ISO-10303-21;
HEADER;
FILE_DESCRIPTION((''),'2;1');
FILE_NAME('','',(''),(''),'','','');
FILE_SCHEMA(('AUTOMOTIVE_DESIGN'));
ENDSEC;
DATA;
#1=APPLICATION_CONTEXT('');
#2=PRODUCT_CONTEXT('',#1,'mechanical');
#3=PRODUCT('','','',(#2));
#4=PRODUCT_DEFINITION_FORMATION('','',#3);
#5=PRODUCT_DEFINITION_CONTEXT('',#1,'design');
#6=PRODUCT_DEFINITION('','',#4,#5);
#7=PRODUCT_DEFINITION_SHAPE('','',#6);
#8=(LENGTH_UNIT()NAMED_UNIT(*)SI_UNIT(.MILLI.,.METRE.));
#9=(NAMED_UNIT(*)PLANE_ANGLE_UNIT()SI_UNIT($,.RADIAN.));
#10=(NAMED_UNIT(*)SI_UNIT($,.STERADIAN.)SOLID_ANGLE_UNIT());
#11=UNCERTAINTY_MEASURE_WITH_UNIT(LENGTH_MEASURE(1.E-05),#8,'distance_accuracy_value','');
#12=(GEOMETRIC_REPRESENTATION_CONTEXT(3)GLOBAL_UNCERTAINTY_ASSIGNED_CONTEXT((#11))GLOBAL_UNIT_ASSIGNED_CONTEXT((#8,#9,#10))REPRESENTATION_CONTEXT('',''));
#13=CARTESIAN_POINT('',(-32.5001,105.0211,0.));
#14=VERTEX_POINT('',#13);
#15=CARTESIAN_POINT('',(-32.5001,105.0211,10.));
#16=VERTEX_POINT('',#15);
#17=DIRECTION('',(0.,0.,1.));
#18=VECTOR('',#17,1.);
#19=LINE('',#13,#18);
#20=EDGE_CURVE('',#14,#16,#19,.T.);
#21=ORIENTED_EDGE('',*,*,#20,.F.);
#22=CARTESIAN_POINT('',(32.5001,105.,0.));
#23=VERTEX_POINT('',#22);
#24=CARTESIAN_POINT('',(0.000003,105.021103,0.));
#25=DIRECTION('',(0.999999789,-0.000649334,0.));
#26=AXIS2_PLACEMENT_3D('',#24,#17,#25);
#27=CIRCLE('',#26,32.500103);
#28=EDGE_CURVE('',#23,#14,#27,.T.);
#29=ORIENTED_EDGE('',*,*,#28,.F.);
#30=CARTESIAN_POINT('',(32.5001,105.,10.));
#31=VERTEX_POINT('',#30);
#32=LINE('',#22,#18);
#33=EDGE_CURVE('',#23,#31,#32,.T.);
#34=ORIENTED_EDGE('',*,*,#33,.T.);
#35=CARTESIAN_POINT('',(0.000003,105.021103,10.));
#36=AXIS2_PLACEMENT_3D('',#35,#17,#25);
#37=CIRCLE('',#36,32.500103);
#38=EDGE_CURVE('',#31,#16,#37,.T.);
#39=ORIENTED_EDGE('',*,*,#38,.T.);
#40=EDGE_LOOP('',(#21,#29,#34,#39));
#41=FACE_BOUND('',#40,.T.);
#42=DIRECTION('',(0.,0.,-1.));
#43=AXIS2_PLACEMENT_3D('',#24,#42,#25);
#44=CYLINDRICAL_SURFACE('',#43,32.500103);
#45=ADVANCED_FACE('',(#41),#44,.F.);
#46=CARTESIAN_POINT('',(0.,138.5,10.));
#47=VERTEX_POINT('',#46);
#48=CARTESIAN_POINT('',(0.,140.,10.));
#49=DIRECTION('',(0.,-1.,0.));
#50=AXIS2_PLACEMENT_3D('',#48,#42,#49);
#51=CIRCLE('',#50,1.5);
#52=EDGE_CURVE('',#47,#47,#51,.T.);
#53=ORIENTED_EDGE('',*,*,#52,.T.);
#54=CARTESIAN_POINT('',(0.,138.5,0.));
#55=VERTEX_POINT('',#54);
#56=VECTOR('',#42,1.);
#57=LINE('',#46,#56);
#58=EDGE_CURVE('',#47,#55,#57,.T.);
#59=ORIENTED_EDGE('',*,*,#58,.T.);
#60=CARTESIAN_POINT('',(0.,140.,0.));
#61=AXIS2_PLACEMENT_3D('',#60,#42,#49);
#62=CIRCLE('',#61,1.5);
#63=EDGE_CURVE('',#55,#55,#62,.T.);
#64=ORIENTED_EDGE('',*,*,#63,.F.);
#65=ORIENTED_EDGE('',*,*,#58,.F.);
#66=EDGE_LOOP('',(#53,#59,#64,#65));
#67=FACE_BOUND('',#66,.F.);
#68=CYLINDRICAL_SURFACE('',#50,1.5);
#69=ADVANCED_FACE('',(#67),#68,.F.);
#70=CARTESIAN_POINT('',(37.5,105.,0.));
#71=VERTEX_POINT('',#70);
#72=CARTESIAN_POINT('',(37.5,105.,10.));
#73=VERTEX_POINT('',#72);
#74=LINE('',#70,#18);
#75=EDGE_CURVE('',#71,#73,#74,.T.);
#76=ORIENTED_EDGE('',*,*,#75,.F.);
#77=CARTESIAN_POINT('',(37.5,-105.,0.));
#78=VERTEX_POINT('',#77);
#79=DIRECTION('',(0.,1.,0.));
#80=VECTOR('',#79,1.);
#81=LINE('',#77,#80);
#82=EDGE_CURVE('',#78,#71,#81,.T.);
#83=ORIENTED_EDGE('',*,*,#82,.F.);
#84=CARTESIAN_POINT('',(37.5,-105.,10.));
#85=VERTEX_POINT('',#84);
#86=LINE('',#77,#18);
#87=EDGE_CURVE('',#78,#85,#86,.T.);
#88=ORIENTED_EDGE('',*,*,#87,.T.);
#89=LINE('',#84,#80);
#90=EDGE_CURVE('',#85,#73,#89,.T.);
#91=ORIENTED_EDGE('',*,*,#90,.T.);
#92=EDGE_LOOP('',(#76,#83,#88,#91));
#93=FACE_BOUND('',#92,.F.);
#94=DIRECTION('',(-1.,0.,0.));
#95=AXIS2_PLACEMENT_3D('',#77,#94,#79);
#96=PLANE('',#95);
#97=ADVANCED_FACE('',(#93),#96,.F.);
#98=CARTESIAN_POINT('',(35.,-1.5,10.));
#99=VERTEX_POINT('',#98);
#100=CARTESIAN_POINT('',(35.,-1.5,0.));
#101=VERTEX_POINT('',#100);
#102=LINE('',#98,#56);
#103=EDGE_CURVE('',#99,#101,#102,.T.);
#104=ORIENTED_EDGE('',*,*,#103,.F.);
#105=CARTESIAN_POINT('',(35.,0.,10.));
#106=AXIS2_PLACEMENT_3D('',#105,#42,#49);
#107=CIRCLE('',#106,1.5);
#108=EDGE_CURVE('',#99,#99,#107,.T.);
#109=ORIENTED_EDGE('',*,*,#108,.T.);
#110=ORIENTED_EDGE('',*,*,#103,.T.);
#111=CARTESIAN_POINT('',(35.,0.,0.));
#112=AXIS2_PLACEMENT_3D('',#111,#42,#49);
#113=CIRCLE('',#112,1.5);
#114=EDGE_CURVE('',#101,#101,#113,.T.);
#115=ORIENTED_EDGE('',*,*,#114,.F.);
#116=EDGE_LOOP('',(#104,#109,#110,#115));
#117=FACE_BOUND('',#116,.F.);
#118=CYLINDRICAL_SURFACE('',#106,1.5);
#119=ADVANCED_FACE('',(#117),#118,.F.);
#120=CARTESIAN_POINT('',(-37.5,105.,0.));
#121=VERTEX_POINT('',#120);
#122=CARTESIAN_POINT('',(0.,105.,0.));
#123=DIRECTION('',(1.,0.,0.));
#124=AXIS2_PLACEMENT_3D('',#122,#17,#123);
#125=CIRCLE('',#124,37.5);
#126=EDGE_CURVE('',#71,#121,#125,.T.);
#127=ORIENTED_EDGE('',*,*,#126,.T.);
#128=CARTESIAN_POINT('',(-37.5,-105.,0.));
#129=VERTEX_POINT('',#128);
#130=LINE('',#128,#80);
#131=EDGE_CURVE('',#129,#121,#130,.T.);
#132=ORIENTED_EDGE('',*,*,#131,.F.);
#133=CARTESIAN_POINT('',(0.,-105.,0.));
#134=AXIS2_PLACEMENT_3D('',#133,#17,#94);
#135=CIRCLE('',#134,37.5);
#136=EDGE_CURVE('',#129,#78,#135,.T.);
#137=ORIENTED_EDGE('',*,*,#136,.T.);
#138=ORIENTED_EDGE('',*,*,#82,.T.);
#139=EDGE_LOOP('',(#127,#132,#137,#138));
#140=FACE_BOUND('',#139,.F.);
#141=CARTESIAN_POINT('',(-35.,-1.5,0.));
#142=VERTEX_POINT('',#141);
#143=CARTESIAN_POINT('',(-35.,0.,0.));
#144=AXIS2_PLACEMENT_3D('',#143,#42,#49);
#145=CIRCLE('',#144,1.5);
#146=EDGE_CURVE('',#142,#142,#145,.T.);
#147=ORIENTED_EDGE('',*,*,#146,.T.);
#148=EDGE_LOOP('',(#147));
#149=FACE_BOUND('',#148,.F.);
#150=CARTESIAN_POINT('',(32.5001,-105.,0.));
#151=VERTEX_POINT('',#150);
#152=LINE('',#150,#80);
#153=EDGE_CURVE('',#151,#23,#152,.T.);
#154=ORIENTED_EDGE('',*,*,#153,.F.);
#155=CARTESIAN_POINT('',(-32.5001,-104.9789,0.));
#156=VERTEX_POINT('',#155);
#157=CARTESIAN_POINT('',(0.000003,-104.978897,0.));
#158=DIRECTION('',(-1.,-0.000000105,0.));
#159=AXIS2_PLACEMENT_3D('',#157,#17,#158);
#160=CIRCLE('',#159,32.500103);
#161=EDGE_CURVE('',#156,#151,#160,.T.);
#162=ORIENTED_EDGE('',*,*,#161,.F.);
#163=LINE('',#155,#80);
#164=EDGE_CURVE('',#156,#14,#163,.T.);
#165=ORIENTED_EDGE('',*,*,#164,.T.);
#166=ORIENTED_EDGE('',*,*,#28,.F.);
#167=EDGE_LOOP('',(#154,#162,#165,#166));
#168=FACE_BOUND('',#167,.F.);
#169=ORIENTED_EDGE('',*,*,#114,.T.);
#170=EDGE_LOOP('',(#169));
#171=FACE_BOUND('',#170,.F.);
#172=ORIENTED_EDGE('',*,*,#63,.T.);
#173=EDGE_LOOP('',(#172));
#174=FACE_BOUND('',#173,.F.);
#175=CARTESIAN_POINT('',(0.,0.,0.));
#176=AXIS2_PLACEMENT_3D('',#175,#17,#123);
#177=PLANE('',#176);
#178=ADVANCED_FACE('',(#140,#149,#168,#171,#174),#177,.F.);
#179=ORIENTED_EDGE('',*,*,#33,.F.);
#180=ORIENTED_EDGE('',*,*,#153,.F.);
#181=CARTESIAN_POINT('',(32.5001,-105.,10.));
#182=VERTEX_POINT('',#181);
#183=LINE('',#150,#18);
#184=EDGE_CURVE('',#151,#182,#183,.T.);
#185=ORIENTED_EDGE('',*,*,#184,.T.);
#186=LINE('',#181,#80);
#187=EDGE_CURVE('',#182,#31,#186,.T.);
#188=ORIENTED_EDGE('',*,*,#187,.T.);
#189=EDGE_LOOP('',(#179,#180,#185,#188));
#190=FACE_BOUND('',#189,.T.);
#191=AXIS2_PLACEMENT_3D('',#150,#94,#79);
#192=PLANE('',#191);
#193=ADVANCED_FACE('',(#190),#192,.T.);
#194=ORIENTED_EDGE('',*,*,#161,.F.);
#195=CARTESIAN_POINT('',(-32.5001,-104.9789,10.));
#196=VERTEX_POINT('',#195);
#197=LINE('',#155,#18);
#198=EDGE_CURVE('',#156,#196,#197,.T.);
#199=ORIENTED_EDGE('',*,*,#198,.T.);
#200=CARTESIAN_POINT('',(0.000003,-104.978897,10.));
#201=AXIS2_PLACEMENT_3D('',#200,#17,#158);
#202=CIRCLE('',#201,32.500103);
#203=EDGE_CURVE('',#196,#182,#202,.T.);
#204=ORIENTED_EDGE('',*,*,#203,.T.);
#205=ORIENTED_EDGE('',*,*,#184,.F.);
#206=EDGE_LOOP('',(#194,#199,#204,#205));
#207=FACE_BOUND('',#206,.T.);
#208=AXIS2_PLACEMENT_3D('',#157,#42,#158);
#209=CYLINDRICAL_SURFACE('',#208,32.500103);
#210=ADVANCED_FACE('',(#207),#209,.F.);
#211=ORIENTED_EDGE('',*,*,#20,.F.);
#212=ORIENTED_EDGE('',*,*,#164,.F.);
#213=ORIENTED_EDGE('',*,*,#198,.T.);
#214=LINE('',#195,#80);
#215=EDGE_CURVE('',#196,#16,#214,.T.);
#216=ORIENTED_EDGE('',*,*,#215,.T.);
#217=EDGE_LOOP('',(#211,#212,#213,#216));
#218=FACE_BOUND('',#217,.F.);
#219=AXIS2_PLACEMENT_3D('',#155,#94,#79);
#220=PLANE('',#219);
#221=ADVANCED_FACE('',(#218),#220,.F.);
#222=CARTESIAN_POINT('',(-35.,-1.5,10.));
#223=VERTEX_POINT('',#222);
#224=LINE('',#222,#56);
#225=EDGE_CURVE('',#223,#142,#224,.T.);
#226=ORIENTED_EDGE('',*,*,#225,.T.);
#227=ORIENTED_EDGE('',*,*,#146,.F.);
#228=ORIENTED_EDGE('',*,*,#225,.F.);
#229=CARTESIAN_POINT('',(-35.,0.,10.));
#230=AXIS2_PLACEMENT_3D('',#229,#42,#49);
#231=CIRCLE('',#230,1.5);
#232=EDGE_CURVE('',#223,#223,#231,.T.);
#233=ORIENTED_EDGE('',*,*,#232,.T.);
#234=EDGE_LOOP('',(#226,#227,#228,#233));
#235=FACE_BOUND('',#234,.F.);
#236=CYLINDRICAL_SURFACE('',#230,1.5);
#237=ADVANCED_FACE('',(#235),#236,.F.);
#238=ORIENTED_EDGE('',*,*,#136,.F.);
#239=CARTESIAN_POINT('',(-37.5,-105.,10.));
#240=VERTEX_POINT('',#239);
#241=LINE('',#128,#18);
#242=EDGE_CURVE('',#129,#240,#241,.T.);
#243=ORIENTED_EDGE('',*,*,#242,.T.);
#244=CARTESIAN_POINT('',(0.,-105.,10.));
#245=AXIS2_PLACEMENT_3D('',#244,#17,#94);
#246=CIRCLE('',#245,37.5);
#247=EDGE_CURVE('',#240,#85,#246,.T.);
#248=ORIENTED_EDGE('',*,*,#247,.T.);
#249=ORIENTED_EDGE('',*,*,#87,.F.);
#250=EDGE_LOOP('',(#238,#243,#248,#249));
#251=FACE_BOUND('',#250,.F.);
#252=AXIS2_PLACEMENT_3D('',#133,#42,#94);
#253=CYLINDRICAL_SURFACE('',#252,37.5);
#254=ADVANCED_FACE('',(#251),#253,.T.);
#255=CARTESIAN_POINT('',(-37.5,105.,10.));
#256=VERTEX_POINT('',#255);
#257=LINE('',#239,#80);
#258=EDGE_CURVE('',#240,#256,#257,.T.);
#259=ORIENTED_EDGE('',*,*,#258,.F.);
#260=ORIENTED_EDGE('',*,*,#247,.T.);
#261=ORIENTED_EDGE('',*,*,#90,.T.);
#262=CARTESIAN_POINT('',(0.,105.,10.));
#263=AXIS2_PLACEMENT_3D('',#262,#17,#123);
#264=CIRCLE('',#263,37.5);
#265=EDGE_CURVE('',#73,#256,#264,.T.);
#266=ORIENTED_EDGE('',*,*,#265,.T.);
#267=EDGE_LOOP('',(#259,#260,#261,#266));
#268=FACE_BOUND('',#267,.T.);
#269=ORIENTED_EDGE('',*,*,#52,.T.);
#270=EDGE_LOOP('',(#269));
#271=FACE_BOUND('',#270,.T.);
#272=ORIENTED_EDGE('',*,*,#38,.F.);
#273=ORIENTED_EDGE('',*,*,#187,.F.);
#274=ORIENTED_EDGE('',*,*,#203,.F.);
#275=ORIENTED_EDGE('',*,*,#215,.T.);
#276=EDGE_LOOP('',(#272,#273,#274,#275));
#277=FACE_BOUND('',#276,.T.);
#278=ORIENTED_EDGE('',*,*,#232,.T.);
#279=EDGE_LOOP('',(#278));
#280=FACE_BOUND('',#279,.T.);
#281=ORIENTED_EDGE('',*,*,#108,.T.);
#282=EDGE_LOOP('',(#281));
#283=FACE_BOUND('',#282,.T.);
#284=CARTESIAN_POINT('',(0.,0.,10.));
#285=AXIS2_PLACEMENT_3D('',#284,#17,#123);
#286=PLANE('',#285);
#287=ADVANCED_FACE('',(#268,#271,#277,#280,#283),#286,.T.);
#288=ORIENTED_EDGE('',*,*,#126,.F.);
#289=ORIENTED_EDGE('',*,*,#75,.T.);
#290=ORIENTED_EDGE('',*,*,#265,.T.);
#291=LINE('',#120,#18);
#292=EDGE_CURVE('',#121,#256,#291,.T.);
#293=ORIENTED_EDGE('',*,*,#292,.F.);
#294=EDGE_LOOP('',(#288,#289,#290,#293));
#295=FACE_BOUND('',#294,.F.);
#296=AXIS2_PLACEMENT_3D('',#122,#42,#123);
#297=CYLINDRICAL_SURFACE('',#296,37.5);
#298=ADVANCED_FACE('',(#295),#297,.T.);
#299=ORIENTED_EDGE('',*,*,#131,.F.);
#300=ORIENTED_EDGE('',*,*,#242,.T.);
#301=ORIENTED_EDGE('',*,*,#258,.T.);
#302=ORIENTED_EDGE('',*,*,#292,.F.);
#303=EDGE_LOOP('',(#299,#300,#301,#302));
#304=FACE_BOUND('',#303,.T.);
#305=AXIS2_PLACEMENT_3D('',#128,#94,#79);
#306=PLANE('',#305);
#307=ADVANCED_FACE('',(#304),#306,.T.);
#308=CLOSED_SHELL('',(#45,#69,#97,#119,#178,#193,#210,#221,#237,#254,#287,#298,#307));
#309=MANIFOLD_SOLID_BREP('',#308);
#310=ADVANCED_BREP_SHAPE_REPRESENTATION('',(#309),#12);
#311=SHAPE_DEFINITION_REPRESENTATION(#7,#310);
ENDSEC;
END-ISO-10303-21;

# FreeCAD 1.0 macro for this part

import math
import FreeCAD as App
import Part
import Sketcher
from FreeCAD import Vector

doc = App.newDocument("Part")
body = doc.addObject("PartDesign::Body", "Body")

sketch1 = body.newObject("Sketcher::SketchObject", "Sketch")
sketch1.AttachmentSupport = (doc.getObject("XY_Plane"), [""])
sketch1.MapMode = "FlatFace"
sketch1.addGeometry([
    Part.LineSegment(Vector(-38, 105, 0), Vector(-38, -105, 0)),
    Part.ArcOfCircle(Part.Circle(Vector(0, -105, 0), Vector(0, 0, 1), 38), math.radians(180), math.radians(360)),
    Part.LineSegment(Vector(38, -105, 0), Vector(38, 105, 0)),
    Part.ArcOfCircle(Part.Circle(Vector(0, 105, 0), Vector(0, 0, 1), 38), math.radians(0), math.radians(180)),
    Part.ArcOfCircle(Part.Circle(Vector(0, -105, 0), Vector(0, 0, 1), 33), math.radians(180), math.radians(360)),
    Part.LineSegment(Vector(-33, -105, 0), Vector(-33, 105, 0)),
    Part.ArcOfCircle(Part.Circle(Vector(0, 105, 0), Vector(0, 0, 1), 33), math.radians(0), math.radians(180)),
    Part.LineSegment(Vector(33, 105, 0), Vector(33, -105, 0)),
], False)
sketch1.addConstraint([
    Sketcher.Constraint("Tangent", 0, 2, 1, 1),
    Sketcher.Constraint("Tangent", 1, 2, 2, 1),
    Sketcher.Constraint("Tangent", 2, 2, 3, 1),
    Sketcher.Constraint("Tangent", 3, 2, 0, 1),
    Sketcher.Constraint("Tangent", 4, 1, 5, 1),
    Sketcher.Constraint("Tangent", 5, 2, 6, 2),
    Sketcher.Constraint("Coincident", 6, 1, 7, 1),
    Sketcher.Constraint("Coincident", 7, 2, 4, 2),
    Sketcher.Constraint("Vertical", 0),
    Sketcher.Constraint("Vertical", 2),
    Sketcher.Constraint("Vertical", 5),
    Sketcher.Constraint("Vertical", 7),
    Sketcher.Constraint("Symmetric", 1, 3, 3, 3, -1, 1),
    Sketcher.Constraint("PointOnObject", 4, 3, -2),
    Sketcher.Constraint("Horizontal", 3, 2, 6, 1),
    Sketcher.Constraint("Horizontal", 1, 2, 7, 2),
    Sketcher.Constraint("Equal", 2, 5),
    Sketcher.Constraint("DistanceY", 0, 2, 0, 1, 210.0),
    Sketcher.Constraint("Radius", 1, 37.5),
    Sketcher.Constraint("Radius", 4, 32.5),
    Sketcher.Constraint("DistanceY", 4, 3, -1, 1, 104.979),
])
pad1 = body.newObject("PartDesign::Pad", "Pad")
pad1.Profile = sketch1
pad1.Length = 10

sketch2 = body.newObject("Sketcher::SketchObject", "Sketch001")
sketch2.AttachmentSupport = (doc.getObject("XY_Plane"), [""])
sketch2.MapMode = "FlatFace"
sketch2.AttachmentOffset = App.Placement(Vector(0, 0, 10), App.Rotation())
sketch2.addGeometry(Part.Circle(Vector(-35, 0, 0), Vector(0, 0, 1), 1.5), False)
sketch2.addConstraint([
    Sketcher.Constraint("PointOnObject", 0, 3, -1),
    Sketcher.Constraint("Diameter", 0, 3.0),
    Sketcher.Constraint("DistanceX", 0, 3, -1, 1, 35.0),
])
doc.recompute()
hole = body.newObject("PartDesign::Hole", "Hole")
hole.Profile = sketch2
hole.ThreadType = "None"
hole.Diameter = 3
hole.DepthType = "ThroughAll"

sketch3 = body.newObject("Sketcher::SketchObject", "Sketch002")
sketch3.AttachmentSupport = (doc.getObject("XY_Plane"), [""])
sketch3.MapMode = "FlatFace"
sketch3.AttachmentOffset = App.Placement(Vector(0, 0, 10), App.Rotation())
sketch3.addGeometry(Part.Circle(Vector(35, 0, 0), Vector(0, 0, 1), 1.5), False)
sketch3.addConstraint([
    Sketcher.Constraint("PointOnObject", 0, 3, -1),
    Sketcher.Constraint("Diameter", 0, 3.0),
    Sketcher.Constraint("DistanceX", -1, 1, 0, 3, 35.0),
])
doc.recompute()
hole2 = body.newObject("PartDesign::Hole", "Hole001")
hole2.Profile = sketch3
hole2.ThreadType = "None"
hole2.Diameter = 3
hole2.DepthType = "ThroughAll"

sketch4 = body.newObject("Sketcher::SketchObject", "Sketch003")
sketch4.AttachmentSupport = (doc.getObject("XY_Plane"), [""])
sketch4.MapMode = "FlatFace"
sketch4.AttachmentOffset = App.Placement(Vector(0, 0, 10), App.Rotation())
sketch4.addGeometry(Part.Circle(Vector(0, 140, 0), Vector(0, 0, 1), 1.5), False)
sketch4.addConstraint([
    Sketcher.Constraint("PointOnObject", 0, 3, -2),
    Sketcher.Constraint("Diameter", 0, 3.0),
    Sketcher.Constraint("DistanceY", -1, 1, 0, 3, 140.0),
])
doc.recompute()
hole3 = body.newObject("PartDesign::Hole", "Hole002")
hole3.Profile = sketch4
hole3.ThreadType = "None"
hole3.Diameter = 3
hole3.DepthType = "ThroughAll"

doc.recompute()
